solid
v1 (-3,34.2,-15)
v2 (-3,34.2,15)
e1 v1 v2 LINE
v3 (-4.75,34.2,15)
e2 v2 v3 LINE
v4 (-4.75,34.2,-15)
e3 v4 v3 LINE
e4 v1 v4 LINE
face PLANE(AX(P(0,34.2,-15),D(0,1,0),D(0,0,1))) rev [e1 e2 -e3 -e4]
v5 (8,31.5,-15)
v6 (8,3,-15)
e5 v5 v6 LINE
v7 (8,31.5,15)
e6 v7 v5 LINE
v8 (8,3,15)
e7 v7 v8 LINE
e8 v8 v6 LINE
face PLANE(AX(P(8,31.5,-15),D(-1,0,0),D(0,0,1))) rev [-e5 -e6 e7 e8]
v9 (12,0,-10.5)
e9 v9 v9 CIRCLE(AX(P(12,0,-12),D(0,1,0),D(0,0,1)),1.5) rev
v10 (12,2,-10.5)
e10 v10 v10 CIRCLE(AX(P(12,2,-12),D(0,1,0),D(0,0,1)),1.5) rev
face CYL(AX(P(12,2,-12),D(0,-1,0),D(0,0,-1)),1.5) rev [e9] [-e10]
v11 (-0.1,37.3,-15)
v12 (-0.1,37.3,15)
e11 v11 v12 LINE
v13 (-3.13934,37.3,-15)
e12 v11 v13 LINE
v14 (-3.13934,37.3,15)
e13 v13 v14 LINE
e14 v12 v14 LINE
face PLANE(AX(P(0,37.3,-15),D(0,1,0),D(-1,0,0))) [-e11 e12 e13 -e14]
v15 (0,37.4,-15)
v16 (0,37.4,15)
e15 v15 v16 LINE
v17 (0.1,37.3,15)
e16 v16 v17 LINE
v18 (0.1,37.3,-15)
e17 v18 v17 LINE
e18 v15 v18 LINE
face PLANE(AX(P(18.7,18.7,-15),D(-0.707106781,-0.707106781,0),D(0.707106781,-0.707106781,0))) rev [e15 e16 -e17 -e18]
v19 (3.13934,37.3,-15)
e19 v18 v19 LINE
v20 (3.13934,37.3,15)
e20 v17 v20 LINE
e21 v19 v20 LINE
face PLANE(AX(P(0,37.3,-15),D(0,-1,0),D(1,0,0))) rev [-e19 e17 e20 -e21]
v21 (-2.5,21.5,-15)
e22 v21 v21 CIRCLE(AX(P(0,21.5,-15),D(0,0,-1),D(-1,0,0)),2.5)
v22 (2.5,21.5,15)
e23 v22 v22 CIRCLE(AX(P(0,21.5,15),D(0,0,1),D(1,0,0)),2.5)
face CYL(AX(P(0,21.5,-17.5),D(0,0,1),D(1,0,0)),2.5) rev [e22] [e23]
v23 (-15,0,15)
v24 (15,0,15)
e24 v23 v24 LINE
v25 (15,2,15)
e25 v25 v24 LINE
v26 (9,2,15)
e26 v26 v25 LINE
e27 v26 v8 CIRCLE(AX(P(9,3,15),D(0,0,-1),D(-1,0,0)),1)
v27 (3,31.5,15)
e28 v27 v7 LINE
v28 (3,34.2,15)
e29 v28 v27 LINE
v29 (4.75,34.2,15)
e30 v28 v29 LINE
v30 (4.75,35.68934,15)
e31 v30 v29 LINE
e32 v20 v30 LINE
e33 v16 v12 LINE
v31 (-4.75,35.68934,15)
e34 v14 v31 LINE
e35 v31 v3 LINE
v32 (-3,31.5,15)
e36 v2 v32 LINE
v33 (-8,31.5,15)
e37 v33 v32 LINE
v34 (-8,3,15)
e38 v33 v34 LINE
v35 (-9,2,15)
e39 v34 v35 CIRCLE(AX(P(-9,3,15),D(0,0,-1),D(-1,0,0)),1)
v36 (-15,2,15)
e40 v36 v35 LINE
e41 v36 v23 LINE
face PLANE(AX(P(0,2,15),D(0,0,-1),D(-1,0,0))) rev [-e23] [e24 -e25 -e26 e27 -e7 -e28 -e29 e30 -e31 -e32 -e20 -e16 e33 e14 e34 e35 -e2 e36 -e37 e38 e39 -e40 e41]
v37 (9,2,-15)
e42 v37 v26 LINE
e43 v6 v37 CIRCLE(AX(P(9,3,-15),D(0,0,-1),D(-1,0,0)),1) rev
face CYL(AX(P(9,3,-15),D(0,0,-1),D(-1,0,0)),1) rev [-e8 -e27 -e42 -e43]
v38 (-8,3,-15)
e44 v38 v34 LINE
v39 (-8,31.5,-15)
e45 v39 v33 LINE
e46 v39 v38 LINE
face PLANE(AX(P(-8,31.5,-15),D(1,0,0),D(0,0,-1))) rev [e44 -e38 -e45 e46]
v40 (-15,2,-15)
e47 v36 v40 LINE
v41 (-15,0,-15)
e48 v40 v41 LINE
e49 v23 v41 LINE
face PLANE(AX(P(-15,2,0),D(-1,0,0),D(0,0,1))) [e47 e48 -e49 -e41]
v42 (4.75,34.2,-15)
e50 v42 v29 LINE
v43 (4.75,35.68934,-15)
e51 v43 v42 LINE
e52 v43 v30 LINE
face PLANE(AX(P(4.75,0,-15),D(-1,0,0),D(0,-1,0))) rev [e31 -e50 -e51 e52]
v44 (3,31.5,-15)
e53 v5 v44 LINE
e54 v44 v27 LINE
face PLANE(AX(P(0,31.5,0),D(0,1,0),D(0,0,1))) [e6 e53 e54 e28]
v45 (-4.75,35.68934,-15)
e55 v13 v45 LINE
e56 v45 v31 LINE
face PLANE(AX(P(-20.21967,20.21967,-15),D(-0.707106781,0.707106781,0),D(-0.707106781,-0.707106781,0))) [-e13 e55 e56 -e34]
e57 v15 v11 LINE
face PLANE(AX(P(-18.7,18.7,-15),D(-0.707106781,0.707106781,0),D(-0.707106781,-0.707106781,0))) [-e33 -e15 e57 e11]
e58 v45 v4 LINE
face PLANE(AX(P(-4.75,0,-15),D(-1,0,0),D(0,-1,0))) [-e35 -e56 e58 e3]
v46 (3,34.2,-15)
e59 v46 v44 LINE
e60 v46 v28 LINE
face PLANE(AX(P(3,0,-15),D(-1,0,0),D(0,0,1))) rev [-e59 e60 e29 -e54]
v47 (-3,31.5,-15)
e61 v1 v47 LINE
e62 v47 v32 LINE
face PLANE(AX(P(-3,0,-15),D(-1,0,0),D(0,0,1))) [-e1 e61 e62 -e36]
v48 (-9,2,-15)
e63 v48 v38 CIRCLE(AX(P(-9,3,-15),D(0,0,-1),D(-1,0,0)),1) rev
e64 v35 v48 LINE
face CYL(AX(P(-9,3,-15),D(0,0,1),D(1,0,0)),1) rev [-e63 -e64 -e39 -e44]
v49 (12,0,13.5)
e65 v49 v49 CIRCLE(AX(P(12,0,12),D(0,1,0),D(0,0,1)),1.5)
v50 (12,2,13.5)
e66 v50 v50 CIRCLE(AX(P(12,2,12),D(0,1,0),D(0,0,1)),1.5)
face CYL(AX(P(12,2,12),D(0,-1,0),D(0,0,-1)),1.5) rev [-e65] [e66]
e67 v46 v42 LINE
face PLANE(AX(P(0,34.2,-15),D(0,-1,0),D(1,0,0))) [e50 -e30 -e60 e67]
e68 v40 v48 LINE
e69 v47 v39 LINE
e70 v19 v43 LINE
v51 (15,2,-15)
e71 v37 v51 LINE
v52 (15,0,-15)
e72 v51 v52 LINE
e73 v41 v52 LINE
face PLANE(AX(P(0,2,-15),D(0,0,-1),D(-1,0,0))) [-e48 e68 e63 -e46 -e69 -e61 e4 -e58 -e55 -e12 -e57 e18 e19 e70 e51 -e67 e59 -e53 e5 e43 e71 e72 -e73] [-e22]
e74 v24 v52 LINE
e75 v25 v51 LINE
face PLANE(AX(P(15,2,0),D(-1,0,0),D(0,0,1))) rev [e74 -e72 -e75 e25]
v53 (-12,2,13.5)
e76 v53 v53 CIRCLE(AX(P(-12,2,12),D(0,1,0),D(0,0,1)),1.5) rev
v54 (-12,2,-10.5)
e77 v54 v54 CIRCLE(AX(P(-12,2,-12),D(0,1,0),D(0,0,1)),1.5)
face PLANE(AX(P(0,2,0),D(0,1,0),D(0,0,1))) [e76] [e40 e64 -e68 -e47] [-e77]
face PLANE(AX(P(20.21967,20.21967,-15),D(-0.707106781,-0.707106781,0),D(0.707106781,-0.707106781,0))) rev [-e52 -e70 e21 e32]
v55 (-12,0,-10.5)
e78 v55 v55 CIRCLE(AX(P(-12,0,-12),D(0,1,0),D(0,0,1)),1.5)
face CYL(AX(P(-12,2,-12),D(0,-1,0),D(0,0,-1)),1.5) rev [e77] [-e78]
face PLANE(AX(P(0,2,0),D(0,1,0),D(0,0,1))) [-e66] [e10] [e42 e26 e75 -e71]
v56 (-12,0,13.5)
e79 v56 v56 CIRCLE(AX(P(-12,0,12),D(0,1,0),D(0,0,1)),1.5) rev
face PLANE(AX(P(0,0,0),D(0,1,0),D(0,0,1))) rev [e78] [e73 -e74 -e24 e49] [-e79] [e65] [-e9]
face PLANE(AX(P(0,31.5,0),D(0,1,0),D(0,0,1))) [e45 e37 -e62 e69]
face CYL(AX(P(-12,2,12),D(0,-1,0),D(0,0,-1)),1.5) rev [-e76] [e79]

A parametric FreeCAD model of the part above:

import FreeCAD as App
import Part
import Sketcher
Q = App.Units.Quantity


def edges_at(feature, points):
    """Names of the edges that pass closest to the given points."""
    edges = feature.Shape.Edges
    near = lambda p: min(range(len(edges)), key=lambda i: edges[i].distToShape(Part.Vertex(*p))[0])
    return sorted({f"Edge{near(p) + 1}" for p in points})


def add_polygon(sketch, points):
    """Adds a closed chain of lines whose ends are joined by coincident constraints."""
    first, n = sketch.GeometryCount, len(points)
    for a, b in zip(points, points[1:] + points[:1]):
        sketch.addGeometry(Part.LineSegment(App.Vector(*a, 0), App.Vector(*b, 0)), False)
    for i in range(n):
        sketch.addConstraint(Sketcher.Constraint("Coincident", first + i, 2, first + (i + 1) % n, 1))

doc = App.newDocument("Part")
body = doc.addObject("PartDesign::Body", "Body")

sketch1 = body.newObject("Sketcher::SketchObject", "Sketch")
sketch1.AttachmentSupport = (doc.getObject("XZ_Plane"), [""])
sketch1.MapMode = "FlatFace"
add_polygon(sketch1, [(-15, 15), (15, 15), (15, -15), (-15, -15)])
sketch1.addGeometry(Part.Circle(App.Vector(-12, 12, 0), App.Vector(0, 0, 1), 1.5), False)
sketch1.addGeometry(Part.Circle(App.Vector(12, 12, 0), App.Vector(0, 0, 1), 1.5), False)
sketch1.addGeometry(Part.Circle(App.Vector(12, -12, 0), App.Vector(0, 0, 1), 1.5), False)
sketch1.addGeometry(Part.Circle(App.Vector(-12, -12, 0), App.Vector(0, 0, 1), 1.5), False)
sketch1.addConstraint([
    Sketcher.Constraint("Horizontal", 0),
    Sketcher.Constraint("Vertical", 1),
    Sketcher.Constraint("Horizontal", 2),
    Sketcher.Constraint("Vertical", 3),
    Sketcher.Constraint("Equal", 4, 5),
    Sketcher.Constraint("Equal", 5, 6),
    Sketcher.Constraint("Equal", 6, 7),
    Sketcher.Constraint("Symmetric", 4, 3, 6, 3, -1, 1),
    Sketcher.Constraint("Symmetric", 5, 3, 7, 3, -1, 1),
    Sketcher.Constraint("Symmetric", 0, 2, 2, 2, -1, 1),
    Sketcher.Constraint("Symmetric", 4, 3, 5, 3, -2),
    Sketcher.Constraint("Equal", 2, 1),
    Sketcher.Constraint("Diameter", 4, Q("3 mm")),
    Sketcher.Constraint("DistanceX", 0, 1, 0, 2, Q("30 mm")),
    Sketcher.Constraint("DistanceX", 4, 3, -1, 1, Q("12 mm")),
    Sketcher.Constraint("DistanceY", -1, 1, 4, 3, Q("12 mm")),
])
pad1 = body.newObject("PartDesign::Pad", "Pad")
pad1.Profile = sketch1
pad1.Length = 2
pad1.Reversed = True

sketch2 = body.newObject("Sketcher::SketchObject", "Sketch001")
sketch2.AttachmentSupport = (doc.getObject("XZ_Plane"), [""])
sketch2.MapMode = "FlatFace"
sketch2.AttachmentOffset = App.Placement(App.Vector(0, 0, -2), App.Rotation())
add_polygon(sketch2, [(-8, -15), (-8, 15), (8, 15), (8, -15)])
sketch2.addConstraint([
    Sketcher.Constraint("Vertical", 0),
    Sketcher.Constraint("Horizontal", 1),
    Sketcher.Constraint("Vertical", 2),
    Sketcher.Constraint("Horizontal", 3),
    Sketcher.Constraint("Symmetric", 0, 2, 2, 2, -1, 1),
    Sketcher.Constraint("DistanceX", 1, 1, 1, 2, Q("16 mm")),
    Sketcher.Constraint("DistanceY", 0, 1, 0, 2, Q("30 mm")),
])
pad2 = body.newObject("PartDesign::Pad", "Pad001")
pad2.Profile = sketch2
pad2.Length = 29.5
pad2.Reversed = True
doc.recompute()

fillet = body.newObject("PartDesign::Fillet", "Fillet")
fillet.Base = (pad2, edges_at(pad2, [(-8, 2, 0), (8, 2, 0)]))
fillet.Radius = 1

sketch3 = body.newObject("Sketcher::SketchObject", "Sketch002")
sketch3.AttachmentSupport = (doc.getObject("XY_Plane"), [""])
sketch3.MapMode = "FlatFace"
sketch3.AttachmentOffset = App.Placement(App.Vector(0, 0, 15), App.Rotation())
sketch3.addGeometry(Part.Circle(App.Vector(0, 21.5, 0), App.Vector(0, 0, 1), 2.5), False)
sketch3.addConstraint([
    Sketcher.Constraint("PointOnObject", 0, 3, -2),
    Sketcher.Constraint("Diameter", 0, Q("5 mm")),
    Sketcher.Constraint("DistanceY", -1, 1, 0, 3, Q("21.5 mm")),
])
pocket1 = body.newObject("PartDesign::Pocket", "Pocket")
pocket1.Profile = sketch3
pocket1.Length = 32.5

sketch4 = body.newObject("Sketcher::SketchObject", "Sketch003")
sketch4.AttachmentSupport = (doc.getObject("XY_Plane"), [""])
sketch4.MapMode = "FlatFace"
sketch4.AttachmentOffset = App.Placement(App.Vector(0, 0, 15), App.Rotation())
add_polygon(sketch4, [(-4.75, 34.2), (-3, 34.2), (-3, 31.5), (3, 31.5), (3, 34.2), (4.75, 34.2), (4.75, 35.69), (3.14, 37.3), (0.1, 37.3), (0, 37.4), (-0.1, 37.3), (-3.14, 37.3), (-4.75, 35.69)])
sketch4.addConstraint([
    Sketcher.Constraint("Horizontal", 0),
    Sketcher.Constraint("Vertical", 1),
    Sketcher.Constraint("Horizontal", 2),
    Sketcher.Constraint("Vertical", 3),
    Sketcher.Constraint("Horizontal", 4),
    Sketcher.Constraint("Vertical", 5),
    Sketcher.Constraint("Horizontal", 7),
    Sketcher.Constraint("Horizontal", 10),
    Sketcher.Constraint("Vertical", 12),
    Sketcher.Constraint("Symmetric", 0, 2, 3, 2, -2),
    Sketcher.Constraint("Symmetric", 7, 2, 9, 2, -2),
    Sketcher.Constraint("Symmetric", 5, 2, 11, 2, -2),
    Sketcher.Constraint("PointOnObject", 8, 2, -2),
    Sketcher.Constraint("Parallel", 6, 8),
    Sketcher.Constraint("Perpendicular", 8, 9),
    Sketcher.Constraint("Parallel", 9, 11),
    Sketcher.Constraint("DistanceX", 2, 1, 2, 2, Q("6 mm")),
    Sketcher.Constraint("DistanceY", 1, 2, 1, 1, Q("2.7 mm")),
    Sketcher.Constraint("DistanceX", 0, 1, 0, 2, Q("1.75 mm")),
    Sketcher.Constraint("DistanceY", -1, 1, 0, 2, Q("34.2 mm")),
    Sketcher.Constraint("DistanceY", -1, 1, 6, 2, Q("37.3 mm")),
    Sketcher.Constraint("DistanceX", -1, 1, 7, 2, Q("0.1 mm")),
    Sketcher.Constraint("DistanceX", 7, 2, 7, 1, Q("3.03934 mm")),
])
pad3 = body.newObject("PartDesign::Pad", "Pad002")
pad3.Profile = sketch4
pad3.Length = 30
pad3.Reversed = True

doc.recompute()
